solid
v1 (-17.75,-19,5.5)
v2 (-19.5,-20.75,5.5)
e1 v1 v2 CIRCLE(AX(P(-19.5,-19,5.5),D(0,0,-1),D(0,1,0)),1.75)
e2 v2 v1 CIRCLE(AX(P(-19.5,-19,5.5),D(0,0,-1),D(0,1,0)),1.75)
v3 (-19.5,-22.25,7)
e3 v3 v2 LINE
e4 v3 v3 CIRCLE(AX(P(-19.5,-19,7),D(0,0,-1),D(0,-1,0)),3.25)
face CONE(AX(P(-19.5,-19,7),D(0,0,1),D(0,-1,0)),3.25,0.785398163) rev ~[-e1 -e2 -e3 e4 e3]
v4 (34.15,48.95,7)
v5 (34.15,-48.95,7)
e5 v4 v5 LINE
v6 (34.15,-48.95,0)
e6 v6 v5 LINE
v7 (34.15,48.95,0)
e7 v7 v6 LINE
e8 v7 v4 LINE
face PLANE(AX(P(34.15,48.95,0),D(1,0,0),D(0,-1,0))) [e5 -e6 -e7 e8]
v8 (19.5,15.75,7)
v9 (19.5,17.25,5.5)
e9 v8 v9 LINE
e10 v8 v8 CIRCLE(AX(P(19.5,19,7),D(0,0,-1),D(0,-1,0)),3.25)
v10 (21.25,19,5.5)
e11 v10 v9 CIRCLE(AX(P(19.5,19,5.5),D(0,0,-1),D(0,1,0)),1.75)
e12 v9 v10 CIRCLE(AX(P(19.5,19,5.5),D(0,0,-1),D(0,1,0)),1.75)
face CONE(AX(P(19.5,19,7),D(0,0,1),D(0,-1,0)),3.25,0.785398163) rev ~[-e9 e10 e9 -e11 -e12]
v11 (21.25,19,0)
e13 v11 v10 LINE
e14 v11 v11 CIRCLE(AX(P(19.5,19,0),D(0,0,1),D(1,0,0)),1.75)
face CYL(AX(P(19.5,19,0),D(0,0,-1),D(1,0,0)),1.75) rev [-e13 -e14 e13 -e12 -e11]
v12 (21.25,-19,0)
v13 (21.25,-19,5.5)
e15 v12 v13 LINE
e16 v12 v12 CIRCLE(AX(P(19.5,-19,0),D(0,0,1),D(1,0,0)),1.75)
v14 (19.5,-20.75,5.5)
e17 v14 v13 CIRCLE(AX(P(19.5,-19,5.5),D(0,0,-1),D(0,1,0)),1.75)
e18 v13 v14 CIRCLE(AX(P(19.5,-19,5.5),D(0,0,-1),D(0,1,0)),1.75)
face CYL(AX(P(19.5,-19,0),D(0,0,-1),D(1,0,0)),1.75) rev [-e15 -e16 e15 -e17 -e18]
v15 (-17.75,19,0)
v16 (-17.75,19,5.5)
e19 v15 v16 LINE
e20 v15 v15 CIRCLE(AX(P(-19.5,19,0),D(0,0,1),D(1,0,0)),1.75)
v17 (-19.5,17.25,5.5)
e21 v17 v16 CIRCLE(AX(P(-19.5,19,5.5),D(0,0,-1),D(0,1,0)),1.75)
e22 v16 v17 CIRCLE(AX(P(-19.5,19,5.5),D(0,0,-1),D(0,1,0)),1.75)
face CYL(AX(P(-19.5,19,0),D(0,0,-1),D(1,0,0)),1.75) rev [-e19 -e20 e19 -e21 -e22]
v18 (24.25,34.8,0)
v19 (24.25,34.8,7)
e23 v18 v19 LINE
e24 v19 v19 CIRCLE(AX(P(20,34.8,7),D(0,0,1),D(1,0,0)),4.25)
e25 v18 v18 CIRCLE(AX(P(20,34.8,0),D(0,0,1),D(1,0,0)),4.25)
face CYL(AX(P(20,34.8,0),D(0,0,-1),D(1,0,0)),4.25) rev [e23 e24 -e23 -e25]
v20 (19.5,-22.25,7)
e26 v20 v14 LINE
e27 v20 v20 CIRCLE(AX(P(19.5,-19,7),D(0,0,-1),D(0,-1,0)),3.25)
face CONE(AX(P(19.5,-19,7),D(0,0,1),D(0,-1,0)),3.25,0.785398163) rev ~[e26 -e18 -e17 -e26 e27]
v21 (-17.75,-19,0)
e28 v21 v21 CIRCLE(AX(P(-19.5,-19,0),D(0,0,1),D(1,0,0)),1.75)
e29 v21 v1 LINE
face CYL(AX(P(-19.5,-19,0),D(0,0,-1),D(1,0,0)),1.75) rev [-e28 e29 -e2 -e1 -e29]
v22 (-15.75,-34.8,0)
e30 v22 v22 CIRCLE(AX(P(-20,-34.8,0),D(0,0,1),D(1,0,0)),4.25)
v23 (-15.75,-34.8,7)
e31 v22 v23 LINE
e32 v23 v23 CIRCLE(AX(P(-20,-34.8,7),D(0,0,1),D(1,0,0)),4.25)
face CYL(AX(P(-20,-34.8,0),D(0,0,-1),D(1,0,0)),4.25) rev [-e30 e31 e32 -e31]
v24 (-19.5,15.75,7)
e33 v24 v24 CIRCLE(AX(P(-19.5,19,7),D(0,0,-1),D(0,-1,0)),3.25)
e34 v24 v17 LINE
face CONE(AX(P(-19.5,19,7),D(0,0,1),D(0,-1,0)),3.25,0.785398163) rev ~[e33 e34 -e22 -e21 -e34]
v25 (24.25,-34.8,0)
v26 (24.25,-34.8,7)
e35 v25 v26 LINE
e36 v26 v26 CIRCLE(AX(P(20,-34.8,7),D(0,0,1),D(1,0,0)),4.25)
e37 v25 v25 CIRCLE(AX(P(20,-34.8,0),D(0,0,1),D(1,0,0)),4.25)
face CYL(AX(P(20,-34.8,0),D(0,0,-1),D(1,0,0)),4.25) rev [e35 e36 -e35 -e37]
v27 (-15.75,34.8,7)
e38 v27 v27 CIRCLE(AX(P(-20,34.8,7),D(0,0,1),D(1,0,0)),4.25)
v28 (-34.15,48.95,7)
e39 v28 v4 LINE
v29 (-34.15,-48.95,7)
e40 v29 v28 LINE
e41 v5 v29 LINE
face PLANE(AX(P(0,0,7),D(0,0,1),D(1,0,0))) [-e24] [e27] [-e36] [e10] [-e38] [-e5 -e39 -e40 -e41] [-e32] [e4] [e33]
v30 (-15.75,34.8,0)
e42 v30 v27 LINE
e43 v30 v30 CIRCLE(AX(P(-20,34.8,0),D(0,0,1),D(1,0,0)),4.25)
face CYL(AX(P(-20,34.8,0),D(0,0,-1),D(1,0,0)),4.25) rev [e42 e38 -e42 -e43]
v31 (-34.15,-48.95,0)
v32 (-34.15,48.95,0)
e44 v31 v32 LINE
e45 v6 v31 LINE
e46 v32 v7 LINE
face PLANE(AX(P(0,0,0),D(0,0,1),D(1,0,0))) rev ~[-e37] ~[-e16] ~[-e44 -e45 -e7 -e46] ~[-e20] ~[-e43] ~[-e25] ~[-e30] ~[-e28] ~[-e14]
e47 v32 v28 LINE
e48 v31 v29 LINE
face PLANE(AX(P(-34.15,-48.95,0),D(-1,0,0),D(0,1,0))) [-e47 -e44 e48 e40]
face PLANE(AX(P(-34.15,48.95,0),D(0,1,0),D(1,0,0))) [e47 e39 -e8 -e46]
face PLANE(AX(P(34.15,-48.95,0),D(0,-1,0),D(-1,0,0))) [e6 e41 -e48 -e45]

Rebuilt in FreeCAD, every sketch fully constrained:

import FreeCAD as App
import Part
import Sketcher
from FreeCAD import Vector
Q = App.Units.Quantity

doc = App.newDocument("Part")
body = doc.addObject("PartDesign::Body", "Body")

# Sketch on XY plane
sketch1 = body.newObject("Sketcher::SketchObject", "Sketch")
sketch1.AttachmentSupport = (doc.getObject("XY_Plane"), [""])
sketch1.MapMode = "FlatFace"
sketch1.addGeometry(Part.LineSegment(Vector(34.1, 49, 0), Vector(-34.1, 49, 0)), False)
sketch1.addGeometry(Part.LineSegment(Vector(-34.1, 49, 0), Vector(-34.1, -49, 0)), False)
sketch1.addGeometry(Part.LineSegment(Vector(-34.1, -49, 0), Vector(34.1, -49, 0)), False)
sketch1.addGeometry(Part.LineSegment(Vector(34.1, -49, 0), Vector(34.1, 49, 0)), False)
sketch1.addGeometry(Part.Circle(Vector(-20, -34.8, 0), Vector(0, 0, 1), 4.2), False)
sketch1.addGeometry(Part.Circle(Vector(-19.5, -19, 0), Vector(0, 0, 1), 1.8), False)
sketch1.addGeometry(Part.Circle(Vector(20, -34.8, 0), Vector(0, 0, 1), 4.2), False)
sketch1.addGeometry(Part.Circle(Vector(19.5, -19, 0), Vector(0, 0, 1), 1.8), False)
sketch1.addGeometry(Part.Circle(Vector(-19.5, 19, 0), Vector(0, 0, 1), 1.8), False)
sketch1.addGeometry(Part.Circle(Vector(-20, 34.8, 0), Vector(0, 0, 1), 4.2), False)
sketch1.addGeometry(Part.Circle(Vector(19.5, 19, 0), Vector(0, 0, 1), 1.8), False)
sketch1.addGeometry(Part.Circle(Vector(20, 34.8, 0), Vector(0, 0, 1), 4.2), False)
sketch1.addConstraint(Sketcher.Constraint("Coincident", 0, 2, 1, 1))
sketch1.addConstraint(Sketcher.Constraint("Coincident", 1, 2, 2, 1))
sketch1.addConstraint(Sketcher.Constraint("Coincident", 2, 2, 3, 1))
sketch1.addConstraint(Sketcher.Constraint("Coincident", 3, 2, 0, 1))
sketch1.addConstraint(Sketcher.Constraint("Horizontal", 0))
sketch1.addConstraint(Sketcher.Constraint("Vertical", 1))
sketch1.addConstraint(Sketcher.Constraint("Horizontal", 2))
sketch1.addConstraint(Sketcher.Constraint("Vertical", 3))
sketch1.addConstraint(Sketcher.Constraint("Equal", 4, 6))
sketch1.addConstraint(Sketcher.Constraint("Equal", 5, 7))
sketch1.addConstraint(Sketcher.Constraint("Equal", 7, 8))
sketch1.addConstraint(Sketcher.Constraint("Equal", 6, 9))
sketch1.addConstraint(Sketcher.Constraint("Equal", 8, 10))
sketch1.addConstraint(Sketcher.Constraint("Equal", 9, 11))
sketch1.addConstraint(Sketcher.Constraint("Symmetric", 7, 3, 8, 3, -1, 1))
sketch1.addConstraint(Sketcher.Constraint("Symmetric", 6, 3, 9, 3, -1, 1))
sketch1.addConstraint(Sketcher.Constraint("Symmetric", 5, 3, 10, 3, -1, 1))
sketch1.addConstraint(Sketcher.Constraint("Symmetric", 4, 3, 11, 3, -1, 1))
sketch1.addConstraint(Sketcher.Constraint("Symmetric", 0, 2, 2, 2, -1, 1))
sketch1.addConstraint(Sketcher.Constraint("Symmetric", 4, 3, 6, 3, -2))
sketch1.addConstraint(Sketcher.Constraint("Symmetric", 5, 3, 7, 3, -2))
sketch1.addConstraint(Sketcher.Constraint("Diameter", 4, Q("8.5 mm")))
sketch1.addConstraint(Sketcher.Constraint("Diameter", 5, Q("3.5 mm")))
sketch1.addConstraint(Sketcher.Constraint("DistanceX", 0, 2, 0, 1, Q("68.3 mm")))
sketch1.addConstraint(Sketcher.Constraint("DistanceX", 4, 3, 6, 3, Q("40 mm")))
sketch1.addConstraint(Sketcher.Constraint("DistanceX", 5, 3, 7, 3, Q("39 mm")))
sketch1.addConstraint(Sketcher.Constraint("DistanceY", 5, 3, 8, 3, Q("38 mm")))
sketch1.addConstraint(Sketcher.Constraint("DistanceY", 4, 3, 5, 3, Q("15.8 mm")))
sketch1.addConstraint(Sketcher.Constraint("DistanceY", 9, 3, 0, 2, Q("14.15 mm")))
pad1 = body.newObject("PartDesign::Pad", "Pad")
pad1.Profile = sketch1
pad1.Length = 7

# Sketch on XY plane
sketch2 = body.newObject("Sketcher::SketchObject", "Sketch001")
sketch2.AttachmentSupport = (doc.getObject("XY_Plane"), [""])
sketch2.MapMode = "FlatFace"
sketch2.AttachmentOffset = App.Placement(Vector(0, 0, 7), App.Rotation())
sketch2.addGeometry(Part.Circle(Vector(19.5, 19, 0), Vector(0, 0, 1), 1.5), False)
sketch2.addConstraint(Sketcher.Constraint("Diameter", 0, Q("3 mm")))
sketch2.addConstraint(Sketcher.Constraint("DistanceY", -1, 1, 0, 3, Q("19 mm")))
sketch2.addConstraint(Sketcher.Constraint("DistanceX", -1, 1, 0, 3, Q("19.5 mm")))
doc.recompute()
hole = body.newObject("PartDesign::Hole", "Hole")
hole.Profile = sketch2
hole.ThreadType = "None"
hole.Diameter = 3
hole.DepthType = "Dimension"
hole.Depth = 10
hole.DrillPoint = "Angled"
hole.DrillPointAngle = 118
hole.HoleCutType = "Countersink"
hole.HoleCutDiameter = 6.5
hole.HoleCutCountersinkAngle = 90

# Sketch on XY plane
sketch3 = body.newObject("Sketcher::SketchObject", "Sketch002")
sketch3.AttachmentSupport = (doc.getObject("XY_Plane"), [""])
sketch3.MapMode = "FlatFace"
sketch3.AttachmentOffset = App.Placement(Vector(0, 0, 7), App.Rotation())
sketch3.addGeometry(Part.Circle(Vector(-19.5, 19, 0), Vector(0, 0, 1), 1.5), False)
sketch3.addConstraint(Sketcher.Constraint("Diameter", 0, Q("3 mm")))
sketch3.addConstraint(Sketcher.Constraint("DistanceY", -1, 1, 0, 3, Q("19 mm")))
sketch3.addConstraint(Sketcher.Constraint("DistanceX", 0, 3, -1, 1, Q("19.5 mm")))
doc.recompute()
hole2 = body.newObject("PartDesign::Hole", "Hole001")
hole2.Profile = sketch3
hole2.ThreadType = "None"
hole2.Diameter = 3
hole2.DepthType = "Dimension"
hole2.Depth = 16
hole2.DrillPoint = "Angled"
hole2.DrillPointAngle = 118
hole2.HoleCutType = "Countersink"
hole2.HoleCutDiameter = 6.5
hole2.HoleCutCountersinkAngle = 90

# Sketch on XY plane
sketch4 = body.newObject("Sketcher::SketchObject", "Sketch003")
sketch4.AttachmentSupport = (doc.getObject("XY_Plane"), [""])
sketch4.MapMode = "FlatFace"
sketch4.AttachmentOffset = App.Placement(Vector(0, 0, 7), App.Rotation())
sketch4.addGeometry(Part.Circle(Vector(-19.5, -19, 0), Vector(0, 0, 1), 1.5), False)
sketch4.addConstraint(Sketcher.Constraint("Diameter", 0, Q("3 mm")))
sketch4.addConstraint(Sketcher.Constraint("DistanceY", 0, 3, -1, 1, Q("19 mm")))
sketch4.addConstraint(Sketcher.Constraint("DistanceX", 0, 3, -1, 1, Q("19.5 mm")))
doc.recompute()
hole3 = body.newObject("PartDesign::Hole", "Hole002")
hole3.Profile = sketch4
hole3.ThreadType = "None"
hole3.Diameter = 3
hole3.DepthType = "Dimension"
hole3.Depth = 16
hole3.DrillPoint = "Angled"
hole3.DrillPointAngle = 118
hole3.HoleCutType = "Countersink"
hole3.HoleCutDiameter = 6.5
hole3.HoleCutCountersinkAngle = 90

# Sketch on XY plane
sketch5 = body.newObject("Sketcher::SketchObject", "Sketch004")
sketch5.AttachmentSupport = (doc.getObject("XY_Plane"), [""])
sketch5.MapMode = "FlatFace"
sketch5.AttachmentOffset = App.Placement(Vector(0, 0, 7), App.Rotation())
sketch5.addGeometry(Part.Circle(Vector(19.5, -19, 0), Vector(0, 0, 1), 1.5), False)
sketch5.addConstraint(Sketcher.Constraint("Diameter", 0, Q("3 mm")))
sketch5.addConstraint(Sketcher.Constraint("DistanceY", 0, 3, -1, 1, Q("19 mm")))
sketch5.addConstraint(Sketcher.Constraint("DistanceX", -1, 1, 0, 3, Q("19.5 mm")))
doc.recompute()
hole4 = body.newObject("PartDesign::Hole", "Hole003")
hole4.Profile = sketch5
hole4.ThreadType = "None"
hole4.Diameter = 3
hole4.DepthType = "Dimension"
hole4.Depth = 16
hole4.DrillPoint = "Angled"
hole4.DrillPointAngle = 118
hole4.HoleCutType = "Countersink"
hole4.HoleCutDiameter = 6.5
hole4.HoleCutCountersinkAngle = 90

doc.recompute()
